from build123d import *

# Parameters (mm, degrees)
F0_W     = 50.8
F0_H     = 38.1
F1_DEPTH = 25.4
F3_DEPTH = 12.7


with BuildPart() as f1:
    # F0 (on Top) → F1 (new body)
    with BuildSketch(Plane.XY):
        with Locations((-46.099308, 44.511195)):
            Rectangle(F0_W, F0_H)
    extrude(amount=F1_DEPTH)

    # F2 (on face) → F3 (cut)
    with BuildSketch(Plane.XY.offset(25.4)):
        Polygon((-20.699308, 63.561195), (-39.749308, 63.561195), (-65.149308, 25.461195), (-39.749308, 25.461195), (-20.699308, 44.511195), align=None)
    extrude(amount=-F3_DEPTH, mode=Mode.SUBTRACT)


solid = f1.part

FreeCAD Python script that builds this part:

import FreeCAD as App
import Part
import Sketcher

V = App.Vector
Q = App.Units.Quantity

doc = App.newDocument("Part")
body = doc.addObject("PartDesign::Body", "Body")

sketch1 = body.newObject("Sketcher::SketchObject", "Sketch")
sketch1.AttachmentSupport = (doc.getObject("XY_Plane"), [""])
sketch1.MapMode = "FlatFace"
sketch1.addGeometry([
    Part.LineSegment(V(-71.499308, 63.561195, 0), V(-71.499308, 25.461195, 0)),
    Part.LineSegment(V(-71.499308, 25.461195, 0), V(-20.699308, 25.461195, 0)),
    Part.LineSegment(V(-20.699308, 25.461195, 0), V(-20.699308, 63.561195, 0)),
    Part.LineSegment(V(-20.699308, 63.561195, 0), V(-71.499308, 63.561195, 0)),
], False)
sketch1.addConstraint([
    Sketcher.Constraint("Coincident", 0, 2, 1, 1),
    Sketcher.Constraint("Coincident", 1, 2, 2, 1),
    Sketcher.Constraint("Coincident", 2, 2, 3, 1),
    Sketcher.Constraint("Coincident", 3, 2, 0, 1),
    Sketcher.Constraint("Vertical", 0),
    Sketcher.Constraint("Horizontal", 1),
    Sketcher.Constraint("Vertical", 2),
    Sketcher.Constraint("Horizontal", 3),
    Sketcher.Constraint("DistanceX", 1, 1, 1, 2, Q("2 in")),
    Sketcher.Constraint("DistanceY", 0, 2, 0, 1, Q("1.5 in")),
    Sketcher.Constraint("DistanceX", 0, 2, -1, 1, 71.499308),
    Sketcher.Constraint("DistanceY", -1, 1, 0, 2, 25.461195),
])
pad1 = body.newObject("PartDesign::Pad", "Pad")
pad1.Profile = sketch1
pad1.Length = Q("1 in")

sketch2 = body.newObject("Sketcher::SketchObject", "Sketch001")
sketch2.AttachmentSupport = (doc.getObject("XY_Plane"), [""])
sketch2.MapMode = "FlatFace"
sketch2.AttachmentOffset = App.Placement(V(0, 0, 1 * 25.4), App.Rotation())
sketch2.addGeometry([
    Part.LineSegment(V(-20.699308, 63.561195, 0), V(-39.749308, 63.561195, 0)),
    Part.LineSegment(V(-39.749308, 63.561195, 0), V(-65.149308, 25.461195, 0)),
    Part.LineSegment(V(-65.149308, 25.461195, 0), V(-39.749308, 25.461195, 0)),
    Part.LineSegment(V(-39.749308, 25.461195, 0), V(-20.699308, 44.511195, 0)),
    Part.LineSegment(V(-20.699308, 44.511195, 0), V(-20.699308, 63.561195, 0)),
], False)
sketch2.addConstraint([
    Sketcher.Constraint("Coincident", 0, 2, 1, 1),
    Sketcher.Constraint("Coincident", 1, 2, 2, 1),
    Sketcher.Constraint("Coincident", 2, 2, 3, 1),
    Sketcher.Constraint("Coincident", 3, 2, 4, 1),
    Sketcher.Constraint("Coincident", 4, 2, 0, 1),
    Sketcher.Constraint("Horizontal", 0),
    Sketcher.Constraint("Horizontal", 2),
    Sketcher.Constraint("Vertical", 4),
    Sketcher.Constraint("Vertical", 0, 2, 2, 2),
    Sketcher.Constraint("Equal", 0, 4),
    Sketcher.Constraint("DistanceX", 2, 1, 2, 2, Q("1 in")),
    Sketcher.Constraint("Angle", 3, Q("45 deg")),
    Sketcher.Constraint("DistanceX", 0, 2, 0, 1, Q("0.75 in")),
    Sketcher.Constraint("DistanceX", 1, 2, -1, 1, 65.149308),
    Sketcher.Constraint("DistanceY", -1, 1, 0, 2, 63.561195),
])
pocket1 = body.newObject("PartDesign::Pocket", "Pocket")
pocket1.Profile = sketch2
pocket1.Length = Q("0.5 in")

doc.recompute()
